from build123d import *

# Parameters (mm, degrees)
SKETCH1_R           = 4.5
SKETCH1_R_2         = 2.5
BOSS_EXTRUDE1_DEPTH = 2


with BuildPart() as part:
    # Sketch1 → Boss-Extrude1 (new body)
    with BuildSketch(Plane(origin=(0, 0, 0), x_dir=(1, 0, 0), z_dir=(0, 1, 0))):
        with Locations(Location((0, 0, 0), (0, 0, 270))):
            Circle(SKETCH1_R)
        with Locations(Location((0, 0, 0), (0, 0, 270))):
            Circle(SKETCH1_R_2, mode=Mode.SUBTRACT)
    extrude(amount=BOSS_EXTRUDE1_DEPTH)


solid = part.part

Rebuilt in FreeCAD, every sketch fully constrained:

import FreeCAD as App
import Part
import Sketcher
from FreeCAD import Vector
Q = App.Units.Quantity

doc = App.newDocument("Part")
body = doc.addObject("PartDesign::Body", "Body")

# Sketch on XZ plane
sketch1 = body.newObject("Sketcher::SketchObject", "Sketch")
sketch1.AttachmentSupport = (doc.getObject("XZ_Plane"), [""])
sketch1.MapMode = "FlatFace"
sketch1.addGeometry([
    Part.Circle(Vector(0, 0, 0), Vector(0, 0, 1), 4.5),
    Part.Circle(Vector(0, 0, 0), Vector(0, 0, 1), 2.5),
], False)
sketch1.addConstraint([
    Sketcher.Constraint("Coincident", 0, 3, -1, 1),
    Sketcher.Constraint("Coincident", 1, 3, -1, 1),
    Sketcher.Constraint("Diameter", 0, Q("9 mm")),
    Sketcher.Constraint("Diameter", 1, Q("5 mm")),
])
pad1 = body.newObject("PartDesign::Pad", "Pad")
pad1.Profile = sketch1
pad1.Length = 2
pad1.Reversed = True

doc.recompute()
